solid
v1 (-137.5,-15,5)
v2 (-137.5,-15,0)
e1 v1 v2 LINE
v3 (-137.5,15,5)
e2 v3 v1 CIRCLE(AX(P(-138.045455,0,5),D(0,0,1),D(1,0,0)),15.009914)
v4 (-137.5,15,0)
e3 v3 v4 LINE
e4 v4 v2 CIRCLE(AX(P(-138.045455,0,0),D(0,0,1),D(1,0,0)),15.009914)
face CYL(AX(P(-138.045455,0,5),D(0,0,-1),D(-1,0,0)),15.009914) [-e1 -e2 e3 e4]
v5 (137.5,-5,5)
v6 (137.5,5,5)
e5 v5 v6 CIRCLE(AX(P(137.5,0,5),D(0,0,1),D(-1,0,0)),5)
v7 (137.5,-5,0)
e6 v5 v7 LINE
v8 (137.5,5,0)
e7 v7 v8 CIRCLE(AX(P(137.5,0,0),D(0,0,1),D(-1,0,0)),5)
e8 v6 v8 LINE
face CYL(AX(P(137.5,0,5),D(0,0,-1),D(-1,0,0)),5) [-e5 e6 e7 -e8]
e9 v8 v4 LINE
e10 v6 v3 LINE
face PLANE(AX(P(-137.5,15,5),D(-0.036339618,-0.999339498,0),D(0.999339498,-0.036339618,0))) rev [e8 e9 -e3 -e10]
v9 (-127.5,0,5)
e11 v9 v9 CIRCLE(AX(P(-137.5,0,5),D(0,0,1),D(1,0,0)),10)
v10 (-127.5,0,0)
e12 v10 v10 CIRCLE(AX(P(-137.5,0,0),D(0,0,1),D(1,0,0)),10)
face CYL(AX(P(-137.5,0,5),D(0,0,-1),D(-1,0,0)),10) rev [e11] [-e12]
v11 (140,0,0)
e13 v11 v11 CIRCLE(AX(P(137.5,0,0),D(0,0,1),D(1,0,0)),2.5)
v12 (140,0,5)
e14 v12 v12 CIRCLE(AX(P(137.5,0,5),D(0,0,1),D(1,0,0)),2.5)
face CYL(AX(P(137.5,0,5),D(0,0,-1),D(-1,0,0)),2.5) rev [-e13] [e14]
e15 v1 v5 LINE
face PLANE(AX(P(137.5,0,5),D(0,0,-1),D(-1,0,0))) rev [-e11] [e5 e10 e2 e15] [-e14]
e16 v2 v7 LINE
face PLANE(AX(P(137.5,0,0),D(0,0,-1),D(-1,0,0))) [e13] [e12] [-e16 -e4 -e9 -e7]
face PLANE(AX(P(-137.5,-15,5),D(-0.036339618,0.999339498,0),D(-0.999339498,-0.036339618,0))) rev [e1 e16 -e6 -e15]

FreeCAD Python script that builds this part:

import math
import FreeCAD as App
import Part
import Sketcher

V = App.Vector
Q = App.Units.Quantity

doc = App.newDocument("Part")
params = doc.addObject("Spreadsheet::Sheet", "Params")
for row, (alias, value) in enumerate([
    ("sketch1_diameter", "20 mm"),
    ("sketch1_diameter2", "5 mm"),
    ("sketch1_radius", "5 mm"),
    ("pad1_length", "5 mm"),
], start=1):
    params.set(f"A{row}", alias)
    params.set(f"B{row}", "=" + value)
    params.setAlias(f"B{row}", alias)

body = doc.addObject("PartDesign::Body", "Body")

# Sketch on XY plane
sketch1 = body.newObject("Sketcher::SketchObject", "Sketch")
sketch1.AttachmentSupport = (doc.getObject("XY_Plane"), [""])
sketch1.MapMode = "FlatFace"
sketch1.addGeometry(Part.LineSegment(V(-137.5, -15, 0), V(137.5, -5, 0)), False)
sketch1.addGeometry(Part.ArcOfCircle(Part.Circle(V(137.5, 0, 0), V(0, 0, 1), 5), math.radians(-90), math.radians(90)), False)
sketch1.addGeometry(Part.LineSegment(V(137.5, 5, 0), V(-137.5, 15, 0)), False)
sketch1.addGeometry(Part.ArcOfCircle(Part.Circle(V(-138, 0, 0), V(0, 0, 1), 15), math.radians(88), math.radians(272)), False)
sketch1.addGeometry(Part.Circle(V(-137.5, 0, 0), V(0, 0, 1), 10), False)
sketch1.addGeometry(Part.Circle(V(137.5, 0, 0), V(0, 0, 1), 2.5), False)
sketch1.addConstraint(Sketcher.Constraint("Coincident", 0, 2, 1, 1))
sketch1.addConstraint(Sketcher.Constraint("Coincident", 1, 2, 2, 1))
sketch1.addConstraint(Sketcher.Constraint("Tangent", 2, 2, 3, 1))
sketch1.addConstraint(Sketcher.Constraint("Tangent", 3, 2, 0, 1))
sketch1.addConstraint(Sketcher.Constraint("Coincident", 5, 3, 1, 3))
sketch1.addConstraint(Sketcher.Constraint("Symmetric", 1, 3, 4, 3, -1, 1))
sketch1.addConstraint(Sketcher.Constraint("Symmetric", 0, 2, 1, 2, -1))
sketch1.addConstraint(Sketcher.Constraint("PointOnObject", 3, 3, -1))
sketch1.addConstraint(Sketcher.Constraint("Vertical", 5, 3, 0, 2))
sketch1.addConstraint(Sketcher.Constraint("Vertical", 4, 3, 2, 2))
sketch1.addConstraint(Sketcher.Constraint("Diameter", 4, Q("20 mm")))
sketch1.addConstraint(Sketcher.Constraint("Diameter", 5, Q("5 mm")))
sketch1.addConstraint(Sketcher.Constraint("Radius", 1, Q("5 mm")))
sketch1.addConstraint(Sketcher.Constraint("DistanceY", -1, 1, 2, 2, Q("15 mm")))
sketch1.addConstraint(Sketcher.Constraint("DistanceX", 4, 3, 1, 3, Q("275 mm")))
sketch1.setExpression("Constraints[10]", "Params.sketch1_diameter")
sketch1.setExpression("Constraints[11]", "Params.sketch1_diameter2")
sketch1.setExpression("Constraints[12]", "Params.sketch1_radius")
pad1 = body.newObject("PartDesign::Pad", "Pad")
pad1.Profile = sketch1
pad1.setExpression("Length", "Params.pad1_length")

doc.recompute()
